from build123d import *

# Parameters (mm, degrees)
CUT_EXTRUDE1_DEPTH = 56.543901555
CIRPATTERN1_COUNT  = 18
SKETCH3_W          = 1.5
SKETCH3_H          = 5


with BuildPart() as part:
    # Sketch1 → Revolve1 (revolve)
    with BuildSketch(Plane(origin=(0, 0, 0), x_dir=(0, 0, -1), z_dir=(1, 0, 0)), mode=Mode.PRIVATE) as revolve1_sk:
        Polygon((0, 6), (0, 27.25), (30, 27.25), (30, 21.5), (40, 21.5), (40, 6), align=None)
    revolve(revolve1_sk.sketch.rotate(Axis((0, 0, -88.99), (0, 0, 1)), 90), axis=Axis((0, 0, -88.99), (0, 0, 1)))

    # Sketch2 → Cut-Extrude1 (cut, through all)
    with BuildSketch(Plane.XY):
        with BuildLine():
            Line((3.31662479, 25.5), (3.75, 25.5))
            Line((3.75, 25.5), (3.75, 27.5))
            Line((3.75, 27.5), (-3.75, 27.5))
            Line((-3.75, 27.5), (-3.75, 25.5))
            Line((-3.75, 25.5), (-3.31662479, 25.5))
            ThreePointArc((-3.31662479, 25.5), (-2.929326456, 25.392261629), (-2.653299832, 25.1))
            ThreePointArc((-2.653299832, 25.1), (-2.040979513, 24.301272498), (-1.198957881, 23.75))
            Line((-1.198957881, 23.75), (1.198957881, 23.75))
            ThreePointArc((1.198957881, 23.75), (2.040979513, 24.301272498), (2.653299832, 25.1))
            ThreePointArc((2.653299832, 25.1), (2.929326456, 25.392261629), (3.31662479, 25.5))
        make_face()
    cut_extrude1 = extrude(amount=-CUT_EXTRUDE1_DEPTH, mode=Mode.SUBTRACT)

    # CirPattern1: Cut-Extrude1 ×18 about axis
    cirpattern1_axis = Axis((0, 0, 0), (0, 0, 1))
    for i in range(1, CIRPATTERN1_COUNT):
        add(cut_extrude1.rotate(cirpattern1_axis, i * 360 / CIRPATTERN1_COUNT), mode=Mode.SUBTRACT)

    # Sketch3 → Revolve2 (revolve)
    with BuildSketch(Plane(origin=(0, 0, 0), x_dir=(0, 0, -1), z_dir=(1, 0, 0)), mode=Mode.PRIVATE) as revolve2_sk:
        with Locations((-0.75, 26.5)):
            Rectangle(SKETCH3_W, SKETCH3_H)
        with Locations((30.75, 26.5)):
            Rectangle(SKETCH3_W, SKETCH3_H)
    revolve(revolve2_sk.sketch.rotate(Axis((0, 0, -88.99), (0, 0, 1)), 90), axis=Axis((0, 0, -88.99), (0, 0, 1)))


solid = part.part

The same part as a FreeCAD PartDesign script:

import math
import FreeCAD as App
import Part
import Sketcher

V = App.Vector
Q = App.Units.Quantity

doc = App.newDocument("Part")
body = doc.addObject("PartDesign::Body", "Body")

# Sketch on YZ plane
sketch1 = body.newObject("Sketcher::SketchObject", "Sketch")
sketch1.AttachmentSupport = (doc.getObject("YZ_Plane"), [""])
sketch1.MapMode = "FlatFace"
sketch1.addGeometry([
    Part.LineSegment(V(27, 0, 0), V(6, 0, 0)),  # 0
    Part.LineSegment(V(6, 0, 0), V(6, -40, 0)),  # 1
    Part.LineSegment(V(6, -40, 0), V(22, -40, 0)),  # 2
    Part.LineSegment(V(22, -40, 0), V(22, -30, 0)),  # 3
    Part.LineSegment(V(22, -30, 0), V(27, -30, 0)),  # 4
    Part.LineSegment(V(27, -30, 0), V(27, 0, 0)),  # 5
], False)
sketch1.addConstraint([
    Sketcher.Constraint("Coincident", 0, 2, 1, 1),
    Sketcher.Constraint("Coincident", 1, 2, 2, 1),
    Sketcher.Constraint("Coincident", 2, 2, 3, 1),
    Sketcher.Constraint("Coincident", 3, 2, 4, 1),
    Sketcher.Constraint("Coincident", 4, 2, 5, 1),
    Sketcher.Constraint("Coincident", 5, 2, 0, 1),
    Sketcher.Constraint("Horizontal", 0),
    Sketcher.Constraint("Vertical", 1),
    Sketcher.Constraint("Horizontal", 2),
    Sketcher.Constraint("Vertical", 3),
    Sketcher.Constraint("Horizontal", 4),
    Sketcher.Constraint("Vertical", 5),
    Sketcher.Constraint("PointOnObject", 0, 2, -1),
    Sketcher.Constraint("DistanceY", 1, 2, 1, 1, Q("40 mm")),
    Sketcher.Constraint("DistanceY", 3, 1, 3, 2, Q("10 mm")),
    Sketcher.Constraint("DistanceX", 2, 1, 2, 2, Q("15.5 mm")),
    Sketcher.Constraint("DistanceX", -1, 1, 0, 2, Q("6 mm")),
    Sketcher.Constraint("DistanceX", 0, 2, 0, 1, Q("21.25 mm")),
])
revolution = body.newObject("PartDesign::Revolution", "Revolution")
revolution.Profile = sketch1
revolution.ReferenceAxis = (sketch1, ["V_Axis"])
revolution.Angle = 360

# Sketch on XY plane
sketch2 = body.newObject("Sketcher::SketchObject", "Sketch001")
sketch2.AttachmentSupport = (doc.getObject("XY_Plane"), [""])
sketch2.MapMode = "FlatFace"
sketch2.addGeometry([
    Part.LineSegment(V(3.32, 25.5, 0), V(3.75, 25.5, 0)),  # 0
    Part.LineSegment(V(3.75, 25.5, 0), V(3.75, 27.5, 0)),  # 1
    Part.LineSegment(V(3.75, 27.5, 0), V(-3.75, 27.5, 0)),  # 2
    Part.LineSegment(V(-3.75, 27.5, 0), V(-3.75, 25.5, 0)),  # 3
    Part.LineSegment(V(-3.75, 25.5, 0), V(-3.32, 25.5, 0)),  # 4
    Part.ArcOfCircle(Part.Circle(V(-3.32, 24.75, 0), V(0, 0, 1), 0.75), math.radians(28), math.radians(90)),  # 5
    Part.ArcOfCircle(Part.Circle(V(0, 26.5, 0), V(0, 0, 1), 3), math.radians(-152), math.radians(-114)),  # 6
    Part.LineSegment(V(-1.2, 23.75, 0), V(1.2, 23.75, 0)),  # 7
    Part.ArcOfCircle(Part.Circle(V(0, 26.5, 0), V(0, 0, 1), 3), math.radians(-66), math.radians(-28)),  # 8
    Part.ArcOfCircle(Part.Circle(V(3.32, 24.75, 0), V(0, 0, 1), 0.75), math.radians(90), math.radians(152)),  # 9
], False)
sketch2.addConstraint([
    Sketcher.Constraint("Coincident", 0, 2, 1, 1),
    Sketcher.Constraint("Coincident", 1, 2, 2, 1),
    Sketcher.Constraint("Coincident", 2, 2, 3, 1),
    Sketcher.Constraint("Coincident", 3, 2, 4, 1),
    Sketcher.Constraint("Tangent", 4, 2, 5, 2),
    Sketcher.Constraint("Tangent", 5, 1, 6, 1),
    Sketcher.Constraint("Coincident", 6, 2, 7, 1),
    Sketcher.Constraint("Coincident", 7, 2, 8, 1),
    Sketcher.Constraint("Tangent", 8, 2, 9, 2),
    Sketcher.Constraint("Tangent", 9, 1, 0, 1),
    Sketcher.Constraint("Horizontal", 0),
    Sketcher.Constraint("Vertical", 1),
    Sketcher.Constraint("Horizontal", 2),
    Sketcher.Constraint("Vertical", 3),
    Sketcher.Constraint("Horizontal", 4),
    Sketcher.Constraint("Horizontal", 7),
    Sketcher.Constraint("Coincident", 8, 3, 6, 3),
    Sketcher.Constraint("Equal", 6, 8),
    Sketcher.Constraint("Equal", 5, 9),
    Sketcher.Constraint("Symmetric", 5, 3, 9, 3, -2),
    Sketcher.Constraint("Equal", 0, 4),
    Sketcher.Constraint("Radius", 6, Q("3 mm")),
    Sketcher.Constraint("DistanceY", 1, 1, 1, 2, Q("2 mm")),
    Sketcher.Constraint("Radius", 5, Q("0.75 mm")),
    Sketcher.Constraint("DistanceX", 2, 2, 2, 1, Q("7.5 mm")),
    Sketcher.Constraint("DistanceY", 0, 2, 8, 3, Q("1 mm")),
    Sketcher.Constraint("DistanceY", 6, 2, 5, 3, Q("1 mm")),
    Sketcher.Constraint("DistanceY", -1, 1, 6, 3, Q("26.5 mm")),
])
pocket1 = body.newObject("PartDesign::Pocket", "Pocket")
pocket1.Profile = sketch2
pocket1.Type = "ThroughAll"
doc.recompute()

polarpattern = body.newObject("PartDesign::PolarPattern", "PolarPattern")
polarpattern.Originals = [pocket1]
polarpattern.Axis = (doc.getObject("Z_Axis"), [""])
polarpattern.Angle = 360
polarpattern.Occurrences = 18
body.Tip = polarpattern

# Sketch on YZ plane
sketch3 = body.newObject("Sketcher::SketchObject", "Sketch002")
sketch3.AttachmentSupport = (doc.getObject("YZ_Plane"), [""])
sketch3.MapMode = "FlatFace"
sketch3.addGeometry([
    Part.LineSegment(V(29, 1.5, 0), V(24, 1.5, 0)),  # 0
    Part.LineSegment(V(24, 1.5, 0), V(24, 0, 0)),  # 1
    Part.LineSegment(V(24, 0, 0), V(29, 0, 0)),  # 2
    Part.LineSegment(V(29, 0, 0), V(29, 1.5, 0)),  # 3
    Part.LineSegment(V(29, -30, 0), V(24, -30, 0)),  # 4
    Part.LineSegment(V(24, -30, 0), V(24, -31.5, 0)),  # 5
    Part.LineSegment(V(24, -31.5, 0), V(29, -31.5, 0)),  # 6
    Part.LineSegment(V(29, -31.5, 0), V(29, -30, 0)),  # 7
], False)
sketch3.addConstraint([
    Sketcher.Constraint("Coincident", 0, 2, 1, 1),
    Sketcher.Constraint("Coincident", 1, 2, 2, 1),
    Sketcher.Constraint("Coincident", 2, 2, 3, 1),
    Sketcher.Constraint("Coincident", 3, 2, 0, 1),
    Sketcher.Constraint("Coincident", 4, 2, 5, 1),
    Sketcher.Constraint("Coincident", 5, 2, 6, 1),
    Sketcher.Constraint("Coincident", 6, 2, 7, 1),
    Sketcher.Constraint("Coincident", 7, 2, 4, 1),
    Sketcher.Constraint("Horizontal", 0),
    Sketcher.Constraint("Vertical", 1),
    Sketcher.Constraint("Horizontal", 2),
    Sketcher.Constraint("Vertical", 3),
    Sketcher.Constraint("Horizontal", 4),
    Sketcher.Constraint("Vertical", 5),
    Sketcher.Constraint("Horizontal", 6),
    Sketcher.Constraint("Vertical", 7),
    Sketcher.Constraint("PointOnObject", 1, 2, -1),
    Sketcher.Constraint("Vertical", 1, 2, 4, 2),
    Sketcher.Constraint("Vertical", 3, 2, 6, 2),
    Sketcher.Constraint("Equal", 3, 5),
    Sketcher.Constraint("DistanceX", 0, 2, 0, 1, Q("5 mm")),
    Sketcher.Constraint("DistanceY", 1, 2, 1, 1, Q("1.5 mm")),
    Sketcher.Constraint("DistanceX", -1, 1, 0, 2, Q("24 mm")),
    Sketcher.Constraint("DistanceY", 4, 2, -1, 1, Q("30 mm")),
])
revolution2 = body.newObject("PartDesign::Revolution", "Revolution001")
revolution2.Profile = sketch3
revolution2.ReferenceAxis = (sketch3, ["V_Axis"])
revolution2.Angle = 360

doc.recompute()
